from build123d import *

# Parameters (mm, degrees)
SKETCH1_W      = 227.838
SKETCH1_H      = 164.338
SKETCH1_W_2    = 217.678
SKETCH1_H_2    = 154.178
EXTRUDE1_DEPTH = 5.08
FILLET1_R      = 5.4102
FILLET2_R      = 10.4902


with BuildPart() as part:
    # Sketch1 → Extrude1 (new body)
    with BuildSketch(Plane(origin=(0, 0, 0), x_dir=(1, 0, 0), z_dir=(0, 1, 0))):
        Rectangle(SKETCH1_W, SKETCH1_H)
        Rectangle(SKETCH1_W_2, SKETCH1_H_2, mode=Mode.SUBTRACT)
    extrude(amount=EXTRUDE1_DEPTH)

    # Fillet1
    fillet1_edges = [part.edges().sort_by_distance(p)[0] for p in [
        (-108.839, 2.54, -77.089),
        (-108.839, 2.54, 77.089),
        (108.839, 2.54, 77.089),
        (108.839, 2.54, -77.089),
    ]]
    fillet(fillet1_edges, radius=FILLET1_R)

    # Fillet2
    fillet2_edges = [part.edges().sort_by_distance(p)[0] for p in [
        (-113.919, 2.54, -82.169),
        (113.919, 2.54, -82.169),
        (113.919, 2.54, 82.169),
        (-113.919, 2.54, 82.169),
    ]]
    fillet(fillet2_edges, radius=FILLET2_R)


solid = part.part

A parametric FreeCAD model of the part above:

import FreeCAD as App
import Part
import Sketcher
Q = App.Units.Quantity


def edges_at(feature, points):
    """Names of the edges that pass closest to the given points."""
    edges = feature.Shape.Edges
    near = lambda p: min(range(len(edges)), key=lambda i: edges[i].distToShape(Part.Vertex(*p))[0])
    return sorted({f"Edge{near(p) + 1}" for p in points})

doc = App.newDocument("Part")
body = doc.addObject("PartDesign::Body", "Body")

# Sketch on XZ plane
sketch1 = body.newObject("Sketcher::SketchObject", "Sketch")
sketch1.AttachmentSupport = (doc.getObject("XZ_Plane"), [""])
sketch1.MapMode = "FlatFace"
sketch1.addGeometry([
    Part.LineSegment(App.Vector(-113.919, -82.169, 0), App.Vector(-113.919, 82.169, 0)),  # 0
    Part.LineSegment(App.Vector(-113.919, 82.169, 0), App.Vector(113.919, 82.169, 0)),  # 1
    Part.LineSegment(App.Vector(113.919, 82.169, 0), App.Vector(113.919, -82.169, 0)),  # 2
    Part.LineSegment(App.Vector(113.919, -82.169, 0), App.Vector(-113.919, -82.169, 0)),  # 3
    Part.LineSegment(App.Vector(108.839, 77.089, 0), App.Vector(-108.839, 77.089, 0)),  # 4
    Part.LineSegment(App.Vector(-108.839, 77.089, 0), App.Vector(-108.839, -77.089, 0)),  # 5
    Part.LineSegment(App.Vector(-108.839, -77.089, 0), App.Vector(108.839, -77.089, 0)),  # 6
    Part.LineSegment(App.Vector(108.839, -77.089, 0), App.Vector(108.839, 77.089, 0)),  # 7
], False)
sketch1.addConstraint([
    Sketcher.Constraint("Coincident", 0, 2, 1, 1),
    Sketcher.Constraint("Coincident", 1, 2, 2, 1),
    Sketcher.Constraint("Coincident", 2, 2, 3, 1),
    Sketcher.Constraint("Coincident", 3, 2, 0, 1),
    Sketcher.Constraint("Coincident", 4, 2, 5, 1),
    Sketcher.Constraint("Coincident", 5, 2, 6, 1),
    Sketcher.Constraint("Coincident", 6, 2, 7, 1),
    Sketcher.Constraint("Coincident", 7, 2, 4, 1),
    Sketcher.Constraint("Vertical", 0),
    Sketcher.Constraint("Horizontal", 1),
    Sketcher.Constraint("Vertical", 2),
    Sketcher.Constraint("Horizontal", 3),
    Sketcher.Constraint("Horizontal", 4),
    Sketcher.Constraint("Vertical", 5),
    Sketcher.Constraint("Horizontal", 6),
    Sketcher.Constraint("Vertical", 7),
    Sketcher.Constraint("Symmetric", 0, 2, 2, 2, -1, 1),
    Sketcher.Constraint("Symmetric", 4, 2, 6, 2, -1, 1),
    Sketcher.Constraint("DistanceX", 1, 1, 1, 2, Q("8.97 in")),
    Sketcher.Constraint("DistanceX", 4, 2, 4, 1, Q("8.57 in")),
    Sketcher.Constraint("DistanceY", 0, 1, 0, 2, Q("6.47 in")),
    Sketcher.Constraint("DistanceY", 5, 2, 5, 1, Q("6.07 in")),
])
pad1 = body.newObject("PartDesign::Pad", "Pad")
pad1.Profile = sketch1
pad1.Length = Q("0.2 in")
pad1.Reversed = True
doc.recompute()

fillet = body.newObject("PartDesign::Fillet", "Fillet")
fillet.Base = (pad1, edges_at(pad1, [
    (-108.839, 2.54, -77.089),
    (-108.839, 2.54, 77.089),
    (108.839, 2.54, 77.089),
    (108.839, 2.54, -77.089),
]))
fillet.Radius = Q("0.213 in")
doc.recompute()

fillet2 = body.newObject("PartDesign::Fillet", "Fillet001")
fillet2.Base = (fillet, edges_at(fillet, [
    (-113.919, 2.54, -82.169),
    (113.919, 2.54, -82.169),
    (113.919, 2.54, 82.169),
    (-113.919, 2.54, 82.169),
]))
fillet2.Radius = Q("0.413 in")

doc.recompute()
